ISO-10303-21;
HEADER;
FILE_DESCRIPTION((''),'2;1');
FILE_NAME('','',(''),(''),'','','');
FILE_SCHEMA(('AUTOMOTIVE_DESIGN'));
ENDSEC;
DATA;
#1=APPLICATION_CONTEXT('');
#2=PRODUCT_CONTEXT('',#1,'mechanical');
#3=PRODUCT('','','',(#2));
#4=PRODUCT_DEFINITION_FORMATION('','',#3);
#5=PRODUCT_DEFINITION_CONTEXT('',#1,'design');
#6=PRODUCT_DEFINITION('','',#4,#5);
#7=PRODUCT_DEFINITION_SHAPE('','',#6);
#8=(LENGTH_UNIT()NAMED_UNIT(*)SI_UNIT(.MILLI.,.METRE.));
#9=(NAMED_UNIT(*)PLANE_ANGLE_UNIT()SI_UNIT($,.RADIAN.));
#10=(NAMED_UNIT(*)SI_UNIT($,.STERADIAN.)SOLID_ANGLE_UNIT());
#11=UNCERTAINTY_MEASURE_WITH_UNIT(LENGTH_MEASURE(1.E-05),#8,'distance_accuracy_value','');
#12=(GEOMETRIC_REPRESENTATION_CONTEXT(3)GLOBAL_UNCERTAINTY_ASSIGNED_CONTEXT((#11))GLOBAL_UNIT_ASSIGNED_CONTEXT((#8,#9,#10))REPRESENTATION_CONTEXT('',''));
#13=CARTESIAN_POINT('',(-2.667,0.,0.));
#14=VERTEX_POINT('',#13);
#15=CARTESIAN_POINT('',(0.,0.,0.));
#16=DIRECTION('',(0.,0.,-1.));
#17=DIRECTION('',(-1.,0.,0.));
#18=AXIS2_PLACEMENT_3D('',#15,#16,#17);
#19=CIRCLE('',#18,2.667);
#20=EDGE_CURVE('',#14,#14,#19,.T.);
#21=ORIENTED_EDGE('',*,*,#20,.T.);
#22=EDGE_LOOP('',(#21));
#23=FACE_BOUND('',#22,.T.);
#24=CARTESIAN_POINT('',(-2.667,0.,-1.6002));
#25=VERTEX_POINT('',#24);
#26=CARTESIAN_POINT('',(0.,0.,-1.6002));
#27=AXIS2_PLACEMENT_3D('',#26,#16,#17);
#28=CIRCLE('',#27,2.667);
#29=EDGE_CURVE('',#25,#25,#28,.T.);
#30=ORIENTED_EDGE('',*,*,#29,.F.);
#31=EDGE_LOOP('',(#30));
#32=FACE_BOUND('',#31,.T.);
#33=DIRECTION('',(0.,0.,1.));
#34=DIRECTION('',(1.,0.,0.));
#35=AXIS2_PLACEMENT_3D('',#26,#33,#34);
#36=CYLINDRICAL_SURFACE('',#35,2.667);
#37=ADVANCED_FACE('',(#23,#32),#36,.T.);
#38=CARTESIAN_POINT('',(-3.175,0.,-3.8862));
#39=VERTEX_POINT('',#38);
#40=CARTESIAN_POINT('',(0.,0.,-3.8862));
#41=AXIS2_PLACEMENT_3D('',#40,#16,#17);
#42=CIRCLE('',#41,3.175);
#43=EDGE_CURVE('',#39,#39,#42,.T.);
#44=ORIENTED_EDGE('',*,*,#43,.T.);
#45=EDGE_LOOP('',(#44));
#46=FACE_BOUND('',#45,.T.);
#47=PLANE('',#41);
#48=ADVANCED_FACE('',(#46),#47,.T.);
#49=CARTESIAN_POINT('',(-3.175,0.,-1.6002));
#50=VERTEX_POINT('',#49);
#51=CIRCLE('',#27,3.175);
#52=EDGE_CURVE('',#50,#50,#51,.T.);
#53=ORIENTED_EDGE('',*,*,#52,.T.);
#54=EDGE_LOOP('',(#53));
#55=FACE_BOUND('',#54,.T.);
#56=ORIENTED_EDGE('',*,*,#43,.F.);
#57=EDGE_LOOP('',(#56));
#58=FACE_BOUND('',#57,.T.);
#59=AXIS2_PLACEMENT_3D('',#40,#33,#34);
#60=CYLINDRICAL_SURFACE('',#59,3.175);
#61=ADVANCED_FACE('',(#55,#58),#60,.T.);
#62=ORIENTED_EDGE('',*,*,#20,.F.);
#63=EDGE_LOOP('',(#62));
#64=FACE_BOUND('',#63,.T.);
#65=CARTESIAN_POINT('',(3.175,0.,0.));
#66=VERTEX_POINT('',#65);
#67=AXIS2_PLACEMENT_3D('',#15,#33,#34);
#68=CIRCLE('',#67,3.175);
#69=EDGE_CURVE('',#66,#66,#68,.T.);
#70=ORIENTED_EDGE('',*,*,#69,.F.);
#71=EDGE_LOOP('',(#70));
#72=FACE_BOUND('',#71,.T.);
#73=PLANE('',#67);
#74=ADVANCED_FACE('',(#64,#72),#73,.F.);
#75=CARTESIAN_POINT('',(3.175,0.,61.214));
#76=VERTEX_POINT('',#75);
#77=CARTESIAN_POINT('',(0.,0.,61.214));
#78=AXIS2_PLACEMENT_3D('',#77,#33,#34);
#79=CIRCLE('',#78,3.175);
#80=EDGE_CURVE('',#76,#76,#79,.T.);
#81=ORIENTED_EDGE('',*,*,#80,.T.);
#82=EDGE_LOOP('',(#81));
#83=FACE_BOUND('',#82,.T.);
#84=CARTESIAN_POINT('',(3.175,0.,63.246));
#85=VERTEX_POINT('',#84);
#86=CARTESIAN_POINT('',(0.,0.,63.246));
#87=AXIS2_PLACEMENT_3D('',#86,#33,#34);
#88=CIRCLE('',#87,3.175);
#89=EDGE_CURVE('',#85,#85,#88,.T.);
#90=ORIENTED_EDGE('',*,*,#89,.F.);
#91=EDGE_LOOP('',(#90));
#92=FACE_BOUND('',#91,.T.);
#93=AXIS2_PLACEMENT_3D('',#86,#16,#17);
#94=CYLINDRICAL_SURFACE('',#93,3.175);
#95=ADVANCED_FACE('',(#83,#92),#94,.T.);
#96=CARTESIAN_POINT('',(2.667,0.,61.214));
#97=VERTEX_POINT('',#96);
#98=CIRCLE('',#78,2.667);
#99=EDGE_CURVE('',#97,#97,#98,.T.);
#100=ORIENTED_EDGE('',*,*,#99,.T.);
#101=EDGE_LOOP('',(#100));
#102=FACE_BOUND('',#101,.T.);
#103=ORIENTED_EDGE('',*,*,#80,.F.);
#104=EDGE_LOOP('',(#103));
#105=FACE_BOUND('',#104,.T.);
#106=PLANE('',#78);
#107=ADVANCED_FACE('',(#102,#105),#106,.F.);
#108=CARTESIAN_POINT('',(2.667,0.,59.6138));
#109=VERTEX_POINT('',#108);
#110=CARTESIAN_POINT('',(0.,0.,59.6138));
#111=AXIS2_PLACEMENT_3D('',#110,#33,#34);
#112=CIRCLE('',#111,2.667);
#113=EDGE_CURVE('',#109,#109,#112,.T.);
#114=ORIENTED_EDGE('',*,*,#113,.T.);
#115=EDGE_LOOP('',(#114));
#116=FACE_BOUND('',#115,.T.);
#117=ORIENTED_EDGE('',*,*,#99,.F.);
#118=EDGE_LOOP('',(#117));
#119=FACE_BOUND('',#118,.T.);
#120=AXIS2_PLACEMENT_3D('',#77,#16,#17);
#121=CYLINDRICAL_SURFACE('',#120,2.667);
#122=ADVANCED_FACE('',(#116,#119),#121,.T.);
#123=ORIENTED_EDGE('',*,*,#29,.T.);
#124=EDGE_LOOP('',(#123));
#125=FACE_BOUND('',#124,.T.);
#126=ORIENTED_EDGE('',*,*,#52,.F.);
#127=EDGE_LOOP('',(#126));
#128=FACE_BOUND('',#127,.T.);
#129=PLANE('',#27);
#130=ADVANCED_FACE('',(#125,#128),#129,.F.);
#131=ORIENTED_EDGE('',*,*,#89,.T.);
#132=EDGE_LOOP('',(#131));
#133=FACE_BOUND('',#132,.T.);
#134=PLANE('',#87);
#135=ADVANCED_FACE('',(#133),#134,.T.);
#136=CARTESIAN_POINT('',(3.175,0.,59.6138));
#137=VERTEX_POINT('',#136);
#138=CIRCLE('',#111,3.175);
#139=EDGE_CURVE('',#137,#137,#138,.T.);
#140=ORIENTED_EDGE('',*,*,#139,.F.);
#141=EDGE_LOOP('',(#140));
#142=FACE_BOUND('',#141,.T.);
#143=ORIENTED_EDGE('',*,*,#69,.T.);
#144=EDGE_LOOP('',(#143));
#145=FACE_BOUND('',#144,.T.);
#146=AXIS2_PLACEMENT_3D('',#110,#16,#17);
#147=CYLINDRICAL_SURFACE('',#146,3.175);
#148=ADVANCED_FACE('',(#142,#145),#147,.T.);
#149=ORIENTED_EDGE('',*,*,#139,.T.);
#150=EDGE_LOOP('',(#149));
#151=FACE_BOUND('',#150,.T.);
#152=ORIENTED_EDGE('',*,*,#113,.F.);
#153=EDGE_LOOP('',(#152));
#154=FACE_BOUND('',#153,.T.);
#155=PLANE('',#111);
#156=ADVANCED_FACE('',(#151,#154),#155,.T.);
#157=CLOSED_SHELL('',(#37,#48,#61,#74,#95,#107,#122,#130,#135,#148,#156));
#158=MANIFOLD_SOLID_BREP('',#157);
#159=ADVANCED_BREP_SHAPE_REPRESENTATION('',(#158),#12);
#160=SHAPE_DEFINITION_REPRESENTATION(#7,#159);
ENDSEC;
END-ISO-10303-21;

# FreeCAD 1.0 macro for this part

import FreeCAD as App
import Part
import Sketcher
from FreeCAD import Vector
Q = App.Units.Quantity

doc = App.newDocument("Part")
body = doc.addObject("PartDesign::Body", "Body")

# Sketch on XY plane
sketch1 = doc.addObject("Sketcher::SketchObject", "Sketch")
body.addObject(sketch1)
sketch1.AttachmentSupport = (doc.XY_Plane, [""])
sketch1.MapMode = "FlatFace"
sketch1.addGeometry(Part.Circle(Vector(0, 0, 0), Vector(0, 0, 1), 3.175), False)
sketch1.addConstraint([
    Sketcher.Constraint("Coincident", 0, 3, -1, 1),
    Sketcher.Constraint("Diameter", 0, Q("0.25 in")),
])
pad1 = doc.addObject("PartDesign::Pad", "Pad")
body.addObject(pad1)
pad1.Profile = sketch1
pad1.Length = Q("2.347 in")

# Sketch on XY plane
sketch2 = doc.addObject("Sketcher::SketchObject", "Sketch001")
body.addObject(sketch2)
sketch2.AttachmentSupport = (doc.XY_Plane, [""])
sketch2.MapMode = "FlatFace"
sketch2.addGeometry(Part.Circle(Vector(0, 0, 0), Vector(0, 0, 1), 2.667), False)
sketch2.addConstraint([
    Sketcher.Constraint("Coincident", 0, 3, -1, 1),
    Sketcher.Constraint("Diameter", 0, Q("0.21 in")),
])
pad2 = doc.addObject("PartDesign::Pad", "Pad001")
body.addObject(pad2)
pad2.Profile = sketch2
pad2.Length = Q("0.063 in")
pad2.Reversed = True

# Sketch on XY plane
sketch3 = doc.addObject("Sketcher::SketchObject", "Sketch002")
body.addObject(sketch3)
sketch3.AttachmentSupport = (doc.XY_Plane, [""])
sketch3.MapMode = "FlatFace"
sketch3.AttachmentOffset = App.Placement(Vector(0, 0, -0.063 * 25.4), App.Rotation())
sketch3.addGeometry(Part.Circle(Vector(0, 0, 0), Vector(0, 0, 1), 3.175), False)
sketch3.addConstraint([
    Sketcher.Constraint("Coincident", 0, 3, -1, 1),
    Sketcher.Constraint("Diameter", 0, Q("0.25 in")),
])
pad3 = doc.addObject("PartDesign::Pad", "Pad002")
body.addObject(pad3)
pad3.Profile = sketch3
pad3.Length = Q("0.09 in")
pad3.Reversed = True

# Sketch on XY plane
sketch4 = doc.addObject("Sketcher::SketchObject", "Sketch003")
body.addObject(sketch4)
sketch4.AttachmentSupport = (doc.XY_Plane, [""])
sketch4.MapMode = "FlatFace"
sketch4.AttachmentOffset = App.Placement(Vector(0, 0, 2.347 * 25.4), App.Rotation())
sketch4.addGeometry(Part.Circle(Vector(0, 0, 0), Vector(0, 0, 1), 2.667), False)
sketch4.addConstraint([
    Sketcher.Constraint("Coincident", 0, 3, -1, 1),
    Sketcher.Constraint("Diameter", 0, Q("0.21 in")),
])
pad4 = doc.addObject("PartDesign::Pad", "Pad003")
body.addObject(pad4)
pad4.Profile = sketch4
pad4.Length = Q("0.063 in")

# Sketch on XY plane
sketch5 = doc.addObject("Sketcher::SketchObject", "Sketch004")
body.addObject(sketch5)
sketch5.AttachmentSupport = (doc.XY_Plane, [""])
sketch5.MapMode = "FlatFace"
sketch5.AttachmentOffset = App.Placement(Vector(0, 0, 2.41 * 25.4), App.Rotation())
sketch5.addGeometry(Part.Circle(Vector(0, 0, 0), Vector(0, 0, 1), 3.175), False)
sketch5.addConstraint([
    Sketcher.Constraint("Coincident", 0, 3, -1, 1),
    Sketcher.Constraint("Diameter", 0, Q("0.25 in")),
])
pad5 = doc.addObject("PartDesign::Pad", "Pad004")
body.addObject(pad5)
pad5.Profile = sketch5
pad5.Length = Q("0.08 in")

doc.recompute()
